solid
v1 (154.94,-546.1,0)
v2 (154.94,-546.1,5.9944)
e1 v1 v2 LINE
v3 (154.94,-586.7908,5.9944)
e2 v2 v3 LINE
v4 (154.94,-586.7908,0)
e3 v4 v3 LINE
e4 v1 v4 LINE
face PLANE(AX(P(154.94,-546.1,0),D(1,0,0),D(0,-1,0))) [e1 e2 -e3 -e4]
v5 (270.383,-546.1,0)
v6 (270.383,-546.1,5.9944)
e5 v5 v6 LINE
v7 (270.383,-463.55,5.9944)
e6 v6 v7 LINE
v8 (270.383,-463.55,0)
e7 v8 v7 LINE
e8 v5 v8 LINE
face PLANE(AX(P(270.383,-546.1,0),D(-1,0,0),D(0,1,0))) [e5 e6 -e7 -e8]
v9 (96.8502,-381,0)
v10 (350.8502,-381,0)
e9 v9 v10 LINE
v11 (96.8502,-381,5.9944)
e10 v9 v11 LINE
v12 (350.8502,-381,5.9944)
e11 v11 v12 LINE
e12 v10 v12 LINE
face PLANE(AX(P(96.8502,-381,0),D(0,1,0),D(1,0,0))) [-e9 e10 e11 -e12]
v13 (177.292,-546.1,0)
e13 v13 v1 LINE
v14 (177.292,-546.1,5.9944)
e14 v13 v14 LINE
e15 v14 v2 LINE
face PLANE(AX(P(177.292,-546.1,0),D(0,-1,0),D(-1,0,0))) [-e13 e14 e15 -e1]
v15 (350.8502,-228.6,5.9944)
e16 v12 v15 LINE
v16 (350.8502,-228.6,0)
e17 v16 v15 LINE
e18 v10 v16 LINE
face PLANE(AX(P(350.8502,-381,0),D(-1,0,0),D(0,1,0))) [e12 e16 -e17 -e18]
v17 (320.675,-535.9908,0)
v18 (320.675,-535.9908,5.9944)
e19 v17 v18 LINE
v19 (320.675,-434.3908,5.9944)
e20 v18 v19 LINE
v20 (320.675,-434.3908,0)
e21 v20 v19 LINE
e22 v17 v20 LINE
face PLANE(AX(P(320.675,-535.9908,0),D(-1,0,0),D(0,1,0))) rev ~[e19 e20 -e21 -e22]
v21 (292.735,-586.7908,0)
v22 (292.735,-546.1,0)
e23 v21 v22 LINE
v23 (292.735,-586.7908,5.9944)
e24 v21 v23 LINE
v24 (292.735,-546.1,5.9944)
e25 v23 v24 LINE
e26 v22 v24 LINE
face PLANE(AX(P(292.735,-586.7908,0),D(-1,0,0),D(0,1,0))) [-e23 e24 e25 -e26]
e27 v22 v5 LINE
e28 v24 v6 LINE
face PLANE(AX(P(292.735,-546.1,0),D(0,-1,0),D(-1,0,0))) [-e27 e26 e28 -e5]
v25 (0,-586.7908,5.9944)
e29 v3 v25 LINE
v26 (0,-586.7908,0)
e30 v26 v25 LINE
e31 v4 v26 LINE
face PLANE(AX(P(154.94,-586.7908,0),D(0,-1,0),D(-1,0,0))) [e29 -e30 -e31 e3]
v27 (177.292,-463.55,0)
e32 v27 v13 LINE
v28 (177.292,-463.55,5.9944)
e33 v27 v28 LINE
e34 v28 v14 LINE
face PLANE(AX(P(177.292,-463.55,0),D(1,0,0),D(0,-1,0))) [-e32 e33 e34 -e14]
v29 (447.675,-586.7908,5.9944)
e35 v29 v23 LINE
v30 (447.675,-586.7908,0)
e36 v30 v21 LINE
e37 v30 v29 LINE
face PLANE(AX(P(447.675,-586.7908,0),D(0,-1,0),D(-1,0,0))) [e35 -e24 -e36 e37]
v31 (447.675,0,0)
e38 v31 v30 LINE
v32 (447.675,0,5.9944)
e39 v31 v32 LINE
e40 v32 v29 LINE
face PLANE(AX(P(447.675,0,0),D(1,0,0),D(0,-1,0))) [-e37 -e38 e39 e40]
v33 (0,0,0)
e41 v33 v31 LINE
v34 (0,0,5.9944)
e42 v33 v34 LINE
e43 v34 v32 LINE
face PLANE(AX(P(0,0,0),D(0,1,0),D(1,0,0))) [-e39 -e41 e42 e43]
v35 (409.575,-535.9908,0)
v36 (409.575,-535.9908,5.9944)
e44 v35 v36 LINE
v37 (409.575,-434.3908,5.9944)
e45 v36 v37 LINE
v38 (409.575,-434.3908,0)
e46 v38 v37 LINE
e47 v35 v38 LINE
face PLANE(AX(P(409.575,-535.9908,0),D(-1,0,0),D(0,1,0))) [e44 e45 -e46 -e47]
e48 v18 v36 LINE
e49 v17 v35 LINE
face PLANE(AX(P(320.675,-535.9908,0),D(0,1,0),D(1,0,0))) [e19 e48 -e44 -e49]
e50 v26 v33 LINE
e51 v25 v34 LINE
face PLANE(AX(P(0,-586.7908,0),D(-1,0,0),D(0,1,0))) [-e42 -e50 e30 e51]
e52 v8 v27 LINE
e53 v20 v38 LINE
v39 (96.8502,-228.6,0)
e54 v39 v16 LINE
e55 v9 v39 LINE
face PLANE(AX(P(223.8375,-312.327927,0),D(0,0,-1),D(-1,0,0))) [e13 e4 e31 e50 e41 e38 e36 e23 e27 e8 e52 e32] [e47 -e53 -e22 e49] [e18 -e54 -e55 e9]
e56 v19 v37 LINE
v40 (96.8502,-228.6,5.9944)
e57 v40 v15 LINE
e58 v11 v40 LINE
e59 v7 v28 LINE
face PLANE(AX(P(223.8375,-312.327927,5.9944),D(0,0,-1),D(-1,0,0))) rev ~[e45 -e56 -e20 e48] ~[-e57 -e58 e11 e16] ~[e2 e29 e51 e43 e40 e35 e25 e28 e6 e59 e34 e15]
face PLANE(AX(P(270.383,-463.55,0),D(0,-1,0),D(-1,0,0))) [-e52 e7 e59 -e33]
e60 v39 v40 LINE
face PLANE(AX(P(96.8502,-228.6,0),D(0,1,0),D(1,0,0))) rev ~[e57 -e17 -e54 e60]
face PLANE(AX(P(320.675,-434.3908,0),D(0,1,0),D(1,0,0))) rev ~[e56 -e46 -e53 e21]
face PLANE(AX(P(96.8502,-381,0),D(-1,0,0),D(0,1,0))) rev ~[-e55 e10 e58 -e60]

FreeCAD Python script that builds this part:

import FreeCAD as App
import Part
import Sketcher
Q = App.Units.Quantity


def add_polygon(sketch, points):
    """Adds a closed chain of lines whose ends are joined by coincident constraints."""
    first, n = sketch.GeometryCount, len(points)
    for a, b in zip(points, points[1:] + points[:1]):
        sketch.addGeometry(Part.LineSegment(App.Vector(*a, 0), App.Vector(*b, 0)), False)
    for i in range(n):
        sketch.addConstraint(Sketcher.Constraint("Coincident", first + i, 2, first + (i + 1) % n, 1))

doc = App.newDocument("Part")
params = doc.addObject("Spreadsheet::Sheet", "Params")
for row, (alias, value) in enumerate([
    ("sketch1_width", "10 in"),
    ("sketch1_height", "4 in"),
    ("sketch1_height2", "6 in"),
    ("sketch1_width2", "6.1 in"),
    ("sketch1_width3", "3.5 in"),
    ("pad1_length", "0.236 in"),
], start=1):
    params.set(f"A{row}", alias)
    params.set(f"B{row}", "=" + value)
    params.setAlias(f"B{row}", alias)

body = doc.addObject("PartDesign::Body", "Body")

sketch1 = body.newObject("Sketcher::SketchObject", "Sketch")
sketch1.AttachmentSupport = (doc.getObject("XY_Plane"), [""])
sketch1.MapMode = "FlatFace"
add_polygon(sketch1, [(447.675, 0), (0, 0), (0, -586.7908), (154.94, -586.7908), (154.94, -546.1), (177.292, -546.1), (177.292, -463.55), (270.383, -463.55), (270.383, -546.1), (292.735, -546.1), (292.735, -586.7908), (447.675, -586.7908)])
add_polygon(sketch1, [(320.675, -535.9908), (320.675, -434.3908), (409.575, -434.3908), (409.575, -535.9908)])
add_polygon(sketch1, [(96.8502, -381), (96.8502, -228.6), (350.8502, -228.6), (350.8502, -381)])
sketch1.addConstraint([
    Sketcher.Constraint("Horizontal", 0),
    Sketcher.Constraint("Vertical", 1),
    Sketcher.Constraint("Horizontal", 2),
    Sketcher.Constraint("Vertical", 3),
    Sketcher.Constraint("Horizontal", 4),
    Sketcher.Constraint("Vertical", 5),
    Sketcher.Constraint("Horizontal", 6),
    Sketcher.Constraint("Vertical", 7),
    Sketcher.Constraint("Horizontal", 8),
    Sketcher.Constraint("Vertical", 9),
    Sketcher.Constraint("Horizontal", 10),
    Sketcher.Constraint("Vertical", 11),
    Sketcher.Constraint("Vertical", 12),
    Sketcher.Constraint("Horizontal", 13),
    Sketcher.Constraint("Vertical", 14),
    Sketcher.Constraint("Horizontal", 15),
    Sketcher.Constraint("Vertical", 16),
    Sketcher.Constraint("Horizontal", 17),
    Sketcher.Constraint("Vertical", 18),
    Sketcher.Constraint("Horizontal", 19),
    Sketcher.Constraint("Coincident", 0, 2, -1, 1),
    Sketcher.Constraint("Horizontal", 4, 2, 7, 2),
    Sketcher.Constraint("Horizontal", 2, 2, 9, 2),
    Sketcher.Constraint("Equal", 4, 8),
    Sketcher.Constraint("Equal", 2, 10),
    Sketcher.Constraint("DistanceX", 17, 1, 17, 2, Q("10 in")),
    Sketcher.Constraint("DistanceY", 12, 1, 12, 2, Q("4 in")),
    Sketcher.Constraint("DistanceY", 16, 1, 16, 2, Q("6 in")),
    Sketcher.Constraint("DistanceX", 2, 1, 2, 2, Q("6.1 in")),
    Sketcher.Constraint("DistanceX", 13, 1, 13, 2, Q("3.5 in")),
    Sketcher.Constraint("DistanceY", 16, 2, -1, 1, Q("9 in")),
    Sketcher.Constraint("DistanceY", 9, 2, 12, 2, Q("6 in")),
    Sketcher.Constraint("DistanceX", 4, 1, 4, 2, Q("0.88 in")),
    Sketcher.Constraint("DistanceY", 5, 1, 5, 2, Q("3.25 in")),
    Sketcher.Constraint("DistanceY", 3, 2, -1, 1, Q("21.5 in")),
    Sketcher.Constraint("DistanceX", 8, 2, 12, 2, Q("1.1 in")),
    Sketcher.Constraint("DistanceX", 0, 2, 0, 1, Q("17.625 in")),
    Sketcher.Constraint("DistanceY", 1, 2, 1, 1, Q("23.102 in")),
    Sketcher.Constraint("DistanceX", -1, 1, 16, 2, Q("3.813 in")),
])
sketch1.setExpression("Constraints[45]", "Params.sketch1_width")
sketch1.setExpression("Constraints[46]", "Params.sketch1_height")
sketch1.setExpression("Constraints[47]", "Params.sketch1_height2")
sketch1.setExpression("Constraints[48]", "Params.sketch1_width2")
sketch1.setExpression("Constraints[49]", "Params.sketch1_width3")
pad1 = body.newObject("PartDesign::Pad", "Pad")
pad1.Profile = sketch1
pad1.setExpression("Length", "Params.pad1_length")

doc.recompute()
